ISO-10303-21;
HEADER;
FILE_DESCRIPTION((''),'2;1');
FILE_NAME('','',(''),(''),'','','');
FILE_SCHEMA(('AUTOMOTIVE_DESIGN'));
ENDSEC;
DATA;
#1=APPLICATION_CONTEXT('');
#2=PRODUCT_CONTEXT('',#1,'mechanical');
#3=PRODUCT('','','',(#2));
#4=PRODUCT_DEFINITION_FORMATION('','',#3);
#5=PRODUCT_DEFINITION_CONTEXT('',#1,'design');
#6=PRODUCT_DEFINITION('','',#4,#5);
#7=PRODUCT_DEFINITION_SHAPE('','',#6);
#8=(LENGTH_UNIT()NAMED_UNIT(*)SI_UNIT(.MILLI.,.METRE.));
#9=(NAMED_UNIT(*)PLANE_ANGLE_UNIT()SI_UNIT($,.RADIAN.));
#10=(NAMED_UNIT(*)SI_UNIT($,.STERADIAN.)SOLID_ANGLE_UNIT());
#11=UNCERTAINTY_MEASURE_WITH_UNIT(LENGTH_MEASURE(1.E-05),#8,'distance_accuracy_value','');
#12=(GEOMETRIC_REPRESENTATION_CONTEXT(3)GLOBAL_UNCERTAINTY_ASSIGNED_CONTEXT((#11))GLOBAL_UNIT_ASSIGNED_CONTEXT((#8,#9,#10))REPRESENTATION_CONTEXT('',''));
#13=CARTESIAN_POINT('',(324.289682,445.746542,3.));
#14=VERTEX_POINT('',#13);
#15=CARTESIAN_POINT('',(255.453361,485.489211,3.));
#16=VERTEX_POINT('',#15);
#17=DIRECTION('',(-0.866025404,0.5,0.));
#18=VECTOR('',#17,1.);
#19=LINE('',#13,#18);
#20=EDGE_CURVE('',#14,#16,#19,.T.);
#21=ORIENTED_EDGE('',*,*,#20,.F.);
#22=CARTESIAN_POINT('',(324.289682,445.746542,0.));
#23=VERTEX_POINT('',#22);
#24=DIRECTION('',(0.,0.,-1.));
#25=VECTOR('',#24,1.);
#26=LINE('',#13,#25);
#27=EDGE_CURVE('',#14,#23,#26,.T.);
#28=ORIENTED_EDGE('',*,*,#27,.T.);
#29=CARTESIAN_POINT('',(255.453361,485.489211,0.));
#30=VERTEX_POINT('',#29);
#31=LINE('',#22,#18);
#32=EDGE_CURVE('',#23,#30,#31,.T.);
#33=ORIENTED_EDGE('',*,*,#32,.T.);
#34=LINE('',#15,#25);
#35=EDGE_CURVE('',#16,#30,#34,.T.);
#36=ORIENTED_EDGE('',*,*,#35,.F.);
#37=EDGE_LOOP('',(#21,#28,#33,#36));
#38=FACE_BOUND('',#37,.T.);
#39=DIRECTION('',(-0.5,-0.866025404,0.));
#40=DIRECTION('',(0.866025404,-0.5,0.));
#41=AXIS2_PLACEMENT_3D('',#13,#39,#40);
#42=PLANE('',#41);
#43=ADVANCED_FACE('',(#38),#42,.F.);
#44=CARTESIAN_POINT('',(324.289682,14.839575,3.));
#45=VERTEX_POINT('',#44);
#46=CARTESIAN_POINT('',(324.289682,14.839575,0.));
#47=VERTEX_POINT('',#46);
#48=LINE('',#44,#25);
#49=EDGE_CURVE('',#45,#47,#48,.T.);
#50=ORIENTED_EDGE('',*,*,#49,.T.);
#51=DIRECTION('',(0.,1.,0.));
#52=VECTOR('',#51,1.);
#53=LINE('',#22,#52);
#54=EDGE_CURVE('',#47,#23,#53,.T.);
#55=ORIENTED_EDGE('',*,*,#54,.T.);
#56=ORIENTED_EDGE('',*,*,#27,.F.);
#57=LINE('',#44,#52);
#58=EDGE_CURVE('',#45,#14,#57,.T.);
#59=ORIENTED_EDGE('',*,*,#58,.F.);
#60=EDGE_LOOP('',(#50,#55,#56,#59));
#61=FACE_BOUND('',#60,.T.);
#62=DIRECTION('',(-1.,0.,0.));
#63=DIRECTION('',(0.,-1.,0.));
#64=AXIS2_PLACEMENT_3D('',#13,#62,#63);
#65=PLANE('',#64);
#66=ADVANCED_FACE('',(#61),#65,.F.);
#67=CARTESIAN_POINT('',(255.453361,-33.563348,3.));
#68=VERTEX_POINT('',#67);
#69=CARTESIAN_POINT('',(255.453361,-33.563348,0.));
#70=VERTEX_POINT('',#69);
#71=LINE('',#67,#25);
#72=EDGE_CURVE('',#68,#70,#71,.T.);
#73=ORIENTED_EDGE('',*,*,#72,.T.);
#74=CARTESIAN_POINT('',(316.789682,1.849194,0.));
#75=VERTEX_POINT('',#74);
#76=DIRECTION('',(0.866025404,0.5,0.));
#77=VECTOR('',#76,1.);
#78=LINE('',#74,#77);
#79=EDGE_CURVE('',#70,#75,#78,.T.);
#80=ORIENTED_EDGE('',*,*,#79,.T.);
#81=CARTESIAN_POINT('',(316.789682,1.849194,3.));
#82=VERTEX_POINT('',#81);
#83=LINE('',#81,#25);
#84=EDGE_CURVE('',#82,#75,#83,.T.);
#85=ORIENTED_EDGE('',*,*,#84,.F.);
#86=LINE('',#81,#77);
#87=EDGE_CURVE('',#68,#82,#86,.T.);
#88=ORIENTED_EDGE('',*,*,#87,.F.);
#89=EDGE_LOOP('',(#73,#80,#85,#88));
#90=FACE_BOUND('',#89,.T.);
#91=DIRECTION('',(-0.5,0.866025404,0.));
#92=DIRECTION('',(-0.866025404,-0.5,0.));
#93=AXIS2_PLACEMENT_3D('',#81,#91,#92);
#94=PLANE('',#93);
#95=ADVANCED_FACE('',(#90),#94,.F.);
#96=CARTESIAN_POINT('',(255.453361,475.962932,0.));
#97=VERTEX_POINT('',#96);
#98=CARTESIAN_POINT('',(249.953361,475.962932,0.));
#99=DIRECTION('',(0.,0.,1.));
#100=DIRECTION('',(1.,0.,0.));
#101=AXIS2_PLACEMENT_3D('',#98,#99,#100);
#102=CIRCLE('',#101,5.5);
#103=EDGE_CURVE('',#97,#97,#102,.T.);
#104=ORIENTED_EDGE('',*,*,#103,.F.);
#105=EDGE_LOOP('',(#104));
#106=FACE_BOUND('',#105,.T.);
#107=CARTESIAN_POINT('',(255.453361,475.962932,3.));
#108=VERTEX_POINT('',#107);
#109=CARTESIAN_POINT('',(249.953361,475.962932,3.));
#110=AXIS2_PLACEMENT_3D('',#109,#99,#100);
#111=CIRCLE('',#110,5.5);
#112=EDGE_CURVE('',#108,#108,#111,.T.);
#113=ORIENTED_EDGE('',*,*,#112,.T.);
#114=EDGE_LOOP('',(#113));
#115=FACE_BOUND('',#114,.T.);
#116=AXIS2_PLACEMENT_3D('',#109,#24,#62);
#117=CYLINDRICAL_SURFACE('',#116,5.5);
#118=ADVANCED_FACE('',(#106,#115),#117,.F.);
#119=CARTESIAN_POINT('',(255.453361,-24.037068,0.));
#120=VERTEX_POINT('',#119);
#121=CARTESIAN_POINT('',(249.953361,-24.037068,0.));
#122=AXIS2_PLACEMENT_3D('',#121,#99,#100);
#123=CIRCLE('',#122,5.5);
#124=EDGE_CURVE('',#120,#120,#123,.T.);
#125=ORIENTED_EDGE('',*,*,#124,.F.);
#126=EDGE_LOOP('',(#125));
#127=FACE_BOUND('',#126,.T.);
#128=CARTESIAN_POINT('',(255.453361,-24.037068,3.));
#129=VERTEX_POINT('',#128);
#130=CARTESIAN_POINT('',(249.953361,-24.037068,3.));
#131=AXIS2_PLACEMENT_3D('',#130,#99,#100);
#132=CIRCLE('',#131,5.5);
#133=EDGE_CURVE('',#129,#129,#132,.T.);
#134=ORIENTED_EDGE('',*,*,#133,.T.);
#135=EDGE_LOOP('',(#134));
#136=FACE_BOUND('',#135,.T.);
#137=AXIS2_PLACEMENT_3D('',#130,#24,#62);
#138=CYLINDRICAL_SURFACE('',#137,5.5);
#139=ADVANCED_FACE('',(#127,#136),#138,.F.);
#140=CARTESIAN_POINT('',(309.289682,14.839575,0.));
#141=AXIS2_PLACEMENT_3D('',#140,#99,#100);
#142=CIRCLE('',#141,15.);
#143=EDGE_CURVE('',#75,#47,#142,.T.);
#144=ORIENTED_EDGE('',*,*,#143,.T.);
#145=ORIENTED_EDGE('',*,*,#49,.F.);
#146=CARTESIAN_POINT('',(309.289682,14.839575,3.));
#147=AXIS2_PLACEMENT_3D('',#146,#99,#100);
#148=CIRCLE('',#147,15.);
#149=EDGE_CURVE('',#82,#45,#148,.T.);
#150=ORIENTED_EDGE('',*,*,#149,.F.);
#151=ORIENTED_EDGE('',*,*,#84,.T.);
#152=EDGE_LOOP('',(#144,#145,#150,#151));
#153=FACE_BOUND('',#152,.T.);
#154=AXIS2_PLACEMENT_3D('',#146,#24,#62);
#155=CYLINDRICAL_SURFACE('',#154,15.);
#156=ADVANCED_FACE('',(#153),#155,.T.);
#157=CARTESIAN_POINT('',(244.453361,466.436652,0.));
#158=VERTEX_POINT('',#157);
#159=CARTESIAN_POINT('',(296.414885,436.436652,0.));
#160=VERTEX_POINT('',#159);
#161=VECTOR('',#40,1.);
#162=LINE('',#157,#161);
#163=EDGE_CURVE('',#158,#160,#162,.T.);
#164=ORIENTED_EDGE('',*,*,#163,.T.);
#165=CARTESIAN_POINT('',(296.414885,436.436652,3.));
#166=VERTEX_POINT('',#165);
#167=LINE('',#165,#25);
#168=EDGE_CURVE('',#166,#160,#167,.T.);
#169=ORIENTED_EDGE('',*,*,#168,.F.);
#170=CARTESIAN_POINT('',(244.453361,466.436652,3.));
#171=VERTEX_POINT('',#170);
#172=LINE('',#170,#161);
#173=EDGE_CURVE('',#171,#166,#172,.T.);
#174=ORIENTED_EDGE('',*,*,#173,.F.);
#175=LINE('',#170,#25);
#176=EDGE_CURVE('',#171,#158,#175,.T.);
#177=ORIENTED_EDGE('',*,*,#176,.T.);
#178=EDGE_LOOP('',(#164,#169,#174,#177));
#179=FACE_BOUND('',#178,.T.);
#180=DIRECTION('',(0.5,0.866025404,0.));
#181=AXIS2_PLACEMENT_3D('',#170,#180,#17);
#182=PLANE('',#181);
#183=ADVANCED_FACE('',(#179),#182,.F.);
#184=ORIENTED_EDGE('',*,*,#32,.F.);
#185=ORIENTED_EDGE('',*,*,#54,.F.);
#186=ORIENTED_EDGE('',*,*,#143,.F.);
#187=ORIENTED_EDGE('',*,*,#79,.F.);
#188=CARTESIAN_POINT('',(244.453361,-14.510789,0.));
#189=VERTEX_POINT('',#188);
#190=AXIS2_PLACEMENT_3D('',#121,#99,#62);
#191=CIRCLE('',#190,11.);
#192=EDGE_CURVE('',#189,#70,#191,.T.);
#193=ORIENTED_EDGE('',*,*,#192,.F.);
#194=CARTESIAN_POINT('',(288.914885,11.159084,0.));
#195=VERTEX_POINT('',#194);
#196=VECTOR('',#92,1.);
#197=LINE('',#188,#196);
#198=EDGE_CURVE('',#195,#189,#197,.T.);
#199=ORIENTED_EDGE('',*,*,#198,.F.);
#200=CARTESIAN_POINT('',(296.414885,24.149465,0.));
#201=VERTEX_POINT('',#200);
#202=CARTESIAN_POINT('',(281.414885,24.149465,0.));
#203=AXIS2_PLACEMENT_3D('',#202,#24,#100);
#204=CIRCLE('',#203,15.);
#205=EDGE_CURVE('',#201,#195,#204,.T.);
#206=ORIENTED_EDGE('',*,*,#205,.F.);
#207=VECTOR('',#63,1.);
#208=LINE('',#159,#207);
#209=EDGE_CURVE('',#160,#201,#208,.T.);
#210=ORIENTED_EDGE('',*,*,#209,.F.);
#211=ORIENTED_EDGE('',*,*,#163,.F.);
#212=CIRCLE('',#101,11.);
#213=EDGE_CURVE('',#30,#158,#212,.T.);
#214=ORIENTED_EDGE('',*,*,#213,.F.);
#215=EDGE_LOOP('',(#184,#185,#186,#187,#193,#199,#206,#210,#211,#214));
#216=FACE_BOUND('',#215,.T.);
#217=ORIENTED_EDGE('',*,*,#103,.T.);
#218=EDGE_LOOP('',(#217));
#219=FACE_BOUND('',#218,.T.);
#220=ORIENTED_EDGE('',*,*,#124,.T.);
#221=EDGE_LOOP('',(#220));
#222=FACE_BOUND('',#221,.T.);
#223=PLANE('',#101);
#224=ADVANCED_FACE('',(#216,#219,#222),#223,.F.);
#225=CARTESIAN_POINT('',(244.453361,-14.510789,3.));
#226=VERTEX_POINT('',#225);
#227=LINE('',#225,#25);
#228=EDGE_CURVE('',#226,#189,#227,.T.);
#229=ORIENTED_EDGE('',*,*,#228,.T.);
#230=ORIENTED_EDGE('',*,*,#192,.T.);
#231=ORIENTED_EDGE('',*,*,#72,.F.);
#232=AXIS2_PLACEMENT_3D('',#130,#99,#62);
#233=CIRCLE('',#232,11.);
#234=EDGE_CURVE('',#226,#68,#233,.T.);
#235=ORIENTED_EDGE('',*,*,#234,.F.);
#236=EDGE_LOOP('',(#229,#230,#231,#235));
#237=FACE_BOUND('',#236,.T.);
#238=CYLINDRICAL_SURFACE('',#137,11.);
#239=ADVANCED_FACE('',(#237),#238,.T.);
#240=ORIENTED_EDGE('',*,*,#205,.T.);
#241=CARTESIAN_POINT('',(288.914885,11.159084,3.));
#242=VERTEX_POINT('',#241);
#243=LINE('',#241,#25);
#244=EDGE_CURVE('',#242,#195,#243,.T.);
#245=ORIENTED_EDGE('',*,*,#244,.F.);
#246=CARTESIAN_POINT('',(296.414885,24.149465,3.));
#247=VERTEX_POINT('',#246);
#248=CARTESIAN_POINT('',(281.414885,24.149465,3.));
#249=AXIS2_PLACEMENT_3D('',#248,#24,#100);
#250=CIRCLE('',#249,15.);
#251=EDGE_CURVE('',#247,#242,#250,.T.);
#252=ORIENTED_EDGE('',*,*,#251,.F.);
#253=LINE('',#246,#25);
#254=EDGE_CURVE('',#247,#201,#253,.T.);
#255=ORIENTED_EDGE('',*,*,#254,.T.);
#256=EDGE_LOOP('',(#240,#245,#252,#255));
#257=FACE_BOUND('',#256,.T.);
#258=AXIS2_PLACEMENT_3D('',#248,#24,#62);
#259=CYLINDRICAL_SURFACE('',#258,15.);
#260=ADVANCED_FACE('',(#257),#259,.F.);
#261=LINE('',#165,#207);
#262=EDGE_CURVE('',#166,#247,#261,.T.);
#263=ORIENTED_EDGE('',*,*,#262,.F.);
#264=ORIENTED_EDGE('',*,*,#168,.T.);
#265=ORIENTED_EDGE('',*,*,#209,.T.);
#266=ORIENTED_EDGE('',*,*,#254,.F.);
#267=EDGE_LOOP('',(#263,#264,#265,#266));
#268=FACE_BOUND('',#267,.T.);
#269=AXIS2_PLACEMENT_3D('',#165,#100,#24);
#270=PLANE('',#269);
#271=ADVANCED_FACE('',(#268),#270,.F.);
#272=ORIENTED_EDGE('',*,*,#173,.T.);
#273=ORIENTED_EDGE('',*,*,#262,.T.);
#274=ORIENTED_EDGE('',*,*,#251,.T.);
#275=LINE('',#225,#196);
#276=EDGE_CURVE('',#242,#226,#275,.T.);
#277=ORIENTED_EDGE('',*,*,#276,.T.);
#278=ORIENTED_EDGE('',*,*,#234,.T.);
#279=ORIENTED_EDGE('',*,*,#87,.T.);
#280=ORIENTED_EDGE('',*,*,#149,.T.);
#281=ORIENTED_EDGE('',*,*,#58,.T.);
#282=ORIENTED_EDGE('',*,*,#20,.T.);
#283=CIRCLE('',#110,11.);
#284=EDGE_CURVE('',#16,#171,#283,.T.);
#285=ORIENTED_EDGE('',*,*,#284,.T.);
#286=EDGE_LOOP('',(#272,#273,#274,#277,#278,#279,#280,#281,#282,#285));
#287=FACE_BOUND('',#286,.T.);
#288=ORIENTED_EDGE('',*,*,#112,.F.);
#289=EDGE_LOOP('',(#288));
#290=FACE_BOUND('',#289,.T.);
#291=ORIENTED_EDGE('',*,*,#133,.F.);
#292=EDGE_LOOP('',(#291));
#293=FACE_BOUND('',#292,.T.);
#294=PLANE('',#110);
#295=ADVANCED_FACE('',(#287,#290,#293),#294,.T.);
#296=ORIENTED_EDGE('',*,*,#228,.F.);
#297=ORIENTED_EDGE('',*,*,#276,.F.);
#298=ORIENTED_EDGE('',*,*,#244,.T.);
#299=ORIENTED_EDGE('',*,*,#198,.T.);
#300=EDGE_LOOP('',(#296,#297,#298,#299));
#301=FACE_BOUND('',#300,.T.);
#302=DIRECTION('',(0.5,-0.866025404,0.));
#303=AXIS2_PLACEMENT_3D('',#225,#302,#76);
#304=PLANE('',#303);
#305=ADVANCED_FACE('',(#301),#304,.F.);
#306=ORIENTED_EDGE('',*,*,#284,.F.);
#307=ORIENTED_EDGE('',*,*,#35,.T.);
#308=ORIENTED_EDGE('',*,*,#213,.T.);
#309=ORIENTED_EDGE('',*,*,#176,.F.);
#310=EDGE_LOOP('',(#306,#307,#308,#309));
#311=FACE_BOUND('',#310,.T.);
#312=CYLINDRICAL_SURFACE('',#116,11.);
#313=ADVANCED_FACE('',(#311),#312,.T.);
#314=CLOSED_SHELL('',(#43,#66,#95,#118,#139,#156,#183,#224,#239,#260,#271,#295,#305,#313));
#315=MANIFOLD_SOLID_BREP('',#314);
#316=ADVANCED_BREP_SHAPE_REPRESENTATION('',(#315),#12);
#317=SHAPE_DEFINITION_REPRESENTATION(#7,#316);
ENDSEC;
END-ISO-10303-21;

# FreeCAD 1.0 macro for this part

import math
import FreeCAD as App
import Part
import Sketcher

V = App.Vector
Q = App.Units.Quantity

doc = App.newDocument("Part")
body = doc.addObject("PartDesign::Body", "Body")

sketch1 = doc.addObject("Sketcher::SketchObject", "Sketch")
body.addObject(sketch1)
sketch1.AttachmentSupport = (doc.XY_Plane, [""])
sketch1.MapMode = "FlatFace"
sketch1.addGeometry([
    Part.LineSegment(V(324, 446, 0), V(255, 485, 0)),
    Part.ArcOfCircle(Part.Circle(V(250, 476, 0), V(0, 0, 1), 11), math.radians(60), math.radians(240)),
    Part.LineSegment(V(244, 466, 0), V(296, 436, 0)),
    Part.LineSegment(V(296, 436, 0), V(296, 24, 0)),
    Part.ArcOfCircle(Part.Circle(V(281, 24, 0), V(0, 0, 1), 15), math.radians(-60), math.radians(0)),
    Part.LineSegment(V(289, 11, 0), V(244, -15, 0)),
    Part.ArcOfCircle(Part.Circle(V(250, -24, 0), V(0, 0, 1), 11), math.radians(120), math.radians(300)),
    Part.LineSegment(V(255, -34, 0), V(317, 2, 0)),
    Part.ArcOfCircle(Part.Circle(V(309, 15, 0), V(0, 0, 1), 15), math.radians(-60), math.radians(0)),
    Part.LineSegment(V(324, 15, 0), V(324, 446, 0)),
    Part.Circle(V(250, -24, 0), V(0, 0, 1), 6),
    Part.Circle(V(250, 476, 0), V(0, 0, 1), 6),
], False)
sketch1.addConstraint([
    Sketcher.Constraint("Tangent", 0, 2, 1, 1),
    Sketcher.Constraint("Tangent", 1, 2, 2, 1),
    Sketcher.Constraint("Coincident", 2, 2, 3, 1),
    Sketcher.Constraint("Tangent", 3, 2, 4, 2),
    Sketcher.Constraint("Tangent", 4, 1, 5, 1),
    Sketcher.Constraint("Tangent", 5, 2, 6, 1),
    Sketcher.Constraint("Tangent", 6, 2, 7, 1),
    Sketcher.Constraint("Tangent", 7, 2, 8, 1),
    Sketcher.Constraint("Tangent", 8, 2, 9, 1),
    Sketcher.Constraint("Coincident", 9, 2, 0, 1),
    Sketcher.Constraint("Vertical", 3),
    Sketcher.Constraint("Vertical", 9),
    Sketcher.Constraint("Coincident", 10, 3, 6, 3),
    Sketcher.Constraint("Coincident", 11, 3, 1, 3),
    Sketcher.Constraint("Equal", 1, 6),
    Sketcher.Constraint("Equal", 4, 8),
    Sketcher.Constraint("Equal", 10, 11),
    Sketcher.Constraint("Parallel", 0, 2),
    Sketcher.Constraint("Parallel", 5, 7),
    Sketcher.Constraint("Vertical", 1, 3, 6, 3),
    Sketcher.Constraint("Vertical", 1, 2, 5, 2),
    Sketcher.Constraint("Diameter", 10, 11.0),
    Sketcher.Constraint("Radius", 1, 11.0),
    Sketcher.Constraint("Radius", 4, 15.0),
    Sketcher.Constraint("Angle", 0, Q("150 deg")),
    Sketcher.Constraint("Distance", 2, 60.0),
    Sketcher.Constraint("DistanceY", 6, 3, 1, 3, 500.0),
    Sketcher.Constraint("DistanceY", 9, 1, 9, 2, 430.906967),
    Sketcher.Constraint("DistanceX", -1, 1, 1, 3, 249.953361),
    Sketcher.Constraint("DistanceY", -1, 1, 1, 3, 475.962932),
])
pad1 = doc.addObject("PartDesign::Pad", "Pad")
body.addObject(pad1)
pad1.Profile = sketch1
pad1.Length = 3

doc.recompute()
